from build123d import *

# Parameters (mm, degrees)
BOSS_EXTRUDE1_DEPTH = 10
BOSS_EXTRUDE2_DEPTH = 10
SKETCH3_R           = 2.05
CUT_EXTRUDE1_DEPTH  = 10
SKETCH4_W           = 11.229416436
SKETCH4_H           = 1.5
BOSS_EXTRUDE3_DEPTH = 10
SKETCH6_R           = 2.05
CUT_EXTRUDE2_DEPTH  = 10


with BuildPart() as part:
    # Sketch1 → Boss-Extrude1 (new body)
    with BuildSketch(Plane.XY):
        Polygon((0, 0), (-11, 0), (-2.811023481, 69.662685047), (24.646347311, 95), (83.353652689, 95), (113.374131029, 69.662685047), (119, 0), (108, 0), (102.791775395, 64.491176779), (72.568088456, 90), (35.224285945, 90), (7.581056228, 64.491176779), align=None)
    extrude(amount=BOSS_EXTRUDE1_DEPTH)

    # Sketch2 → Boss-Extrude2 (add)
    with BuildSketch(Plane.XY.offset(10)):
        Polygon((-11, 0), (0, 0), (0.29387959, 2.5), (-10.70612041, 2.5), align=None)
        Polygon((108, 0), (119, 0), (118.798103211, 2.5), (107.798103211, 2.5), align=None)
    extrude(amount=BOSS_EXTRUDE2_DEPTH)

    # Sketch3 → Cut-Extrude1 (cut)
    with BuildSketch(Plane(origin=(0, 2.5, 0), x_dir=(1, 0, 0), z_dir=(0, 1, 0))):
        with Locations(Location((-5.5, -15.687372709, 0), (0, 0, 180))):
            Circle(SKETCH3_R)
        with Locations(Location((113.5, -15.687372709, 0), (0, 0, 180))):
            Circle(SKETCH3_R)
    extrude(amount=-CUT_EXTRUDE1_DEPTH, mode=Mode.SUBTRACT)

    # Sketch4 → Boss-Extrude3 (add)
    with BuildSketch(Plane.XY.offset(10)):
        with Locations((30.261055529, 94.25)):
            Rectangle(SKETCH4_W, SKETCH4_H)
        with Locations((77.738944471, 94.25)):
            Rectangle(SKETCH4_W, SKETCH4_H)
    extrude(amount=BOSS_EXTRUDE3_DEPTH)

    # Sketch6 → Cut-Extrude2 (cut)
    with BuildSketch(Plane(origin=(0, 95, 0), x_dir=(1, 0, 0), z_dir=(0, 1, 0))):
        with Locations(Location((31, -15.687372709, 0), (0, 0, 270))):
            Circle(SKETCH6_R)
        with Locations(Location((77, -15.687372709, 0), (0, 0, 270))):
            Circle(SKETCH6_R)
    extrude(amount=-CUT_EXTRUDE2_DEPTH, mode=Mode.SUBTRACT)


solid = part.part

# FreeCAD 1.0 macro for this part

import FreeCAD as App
import Part
import Sketcher

V = App.Vector
Q = App.Units.Quantity


def add_polygon(sketch, points):
    """Adds a closed chain of lines whose ends are joined by coincident constraints."""
    first, n = sketch.GeometryCount, len(points)
    for a, b in zip(points, points[1:] + points[:1]):
        sketch.addGeometry(Part.LineSegment(App.Vector(*a, 0), App.Vector(*b, 0)), False)
    for i in range(n):
        sketch.addConstraint(Sketcher.Constraint("Coincident", first + i, 2, first + (i + 1) % n, 1))

doc = App.newDocument("Part")
body = doc.addObject("PartDesign::Body", "Body")

# Sketch on XY plane
sketch1 = doc.addObject("Sketcher::SketchObject", "Sketch")
body.addObject(sketch1)
sketch1.AttachmentSupport = (doc.XY_Plane, [""])
sketch1.MapMode = "FlatFace"
add_polygon(sketch1, [(-11, 0), (0, 0), (8, 64), (35, 90), (73, 90), (103, 64), (108, 0), (119, 0), (113, 70), (83, 95), (25, 95), (-3, 70)])  # lines 0-11
sketch1.addConstraint([
    Sketcher.Constraint("Horizontal", 0),
    Sketcher.Constraint("Horizontal", 3),
    Sketcher.Constraint("Horizontal", 6),
    Sketcher.Constraint("Horizontal", 9),
    Sketcher.Constraint("Coincident", 0, 2, -1, 1),
    Sketcher.Constraint("PointOnObject", 5, 2, -1),
    Sketcher.Constraint("Parallel", 5, 7),
    Sketcher.Constraint("Parallel", 4, 8),
    Sketcher.Constraint("Parallel", 2, 10),
    Sketcher.Constraint("Parallel", 1, 11),
    Sketcher.Constraint("Horizontal", 1, 2, 4, 2),
    Sketcher.Constraint("Horizontal", 7, 2, 10, 2),
    Sketcher.Constraint("Equal", 0, 6),
    Sketcher.Constraint("DistanceX", 0, 1, 0, 2, Q("11 mm")),
    Sketcher.Constraint("DistanceY", -1, 1, 2, 2, Q("90 mm")),
    Sketcher.Constraint("DistanceX", -1, 1, 5, 2, Q("108 mm")),
    Sketcher.Constraint("DistanceY", -1, 1, 8, 2, Q("95 mm")),
    Sketcher.Constraint("Distance", 1, Q("64.935232 mm")),
    Sketcher.Constraint("Distance", 2, Q("37.614468 mm")),
    Sketcher.Constraint("Distance", 5, Q("64.70114 mm")),
    Sketcher.Constraint("Distance", 11, Q("70.142348 mm")),
    Sketcher.Constraint("DistanceX", 3, 1, 3, 2, Q("37.343803 mm")),
    Sketcher.Constraint("DistanceX", 9, 2, 9, 1, Q("58.707305 mm")),
])
pad1 = doc.addObject("PartDesign::Pad", "Pad")
body.addObject(pad1)
pad1.Profile = sketch1
pad1.Length = 10

# Sketch on XY plane
sketch2 = doc.addObject("Sketcher::SketchObject", "Sketch001")
body.addObject(sketch2)
sketch2.AttachmentSupport = (doc.XY_Plane, [""])
sketch2.MapMode = "FlatFace"
sketch2.AttachmentOffset = App.Placement(V(0, 0, 10), App.Rotation())
add_polygon(sketch2, [(-11, 0), (0, 0), (0.3, 2.5), (-10.7, 2.5)])  # lines 0-3
add_polygon(sketch2, [(108, 0), (119, 0), (118.8, 2.5), (107.8, 2.5)])  # lines 4-7
sketch2.addConstraint([
    Sketcher.Constraint("Horizontal", 0),
    Sketcher.Constraint("Horizontal", 2),
    Sketcher.Constraint("Horizontal", 4),
    Sketcher.Constraint("Horizontal", 6),
    Sketcher.Constraint("Coincident", 0, 2, -1, 1),
    Sketcher.Constraint("PointOnObject", 4, 2, -1),
    Sketcher.Constraint("Parallel", 1, 3),
    Sketcher.Constraint("Parallel", 5, 7),
    Sketcher.Constraint("Horizontal", 2, 2, 5, 2),
    Sketcher.Constraint("Equal", 2, 4),
    Sketcher.Constraint("DistanceX", 0, 1, 0, 2, Q("11 mm")),
    Sketcher.Constraint("DistanceX", -1, 1, 4, 2, Q("119 mm")),
    Sketcher.Constraint("DistanceY", -1, 1, 1, 2, Q("2.5 mm")),
    Sketcher.Constraint("Distance", 5, Q("2.508139 mm")),
    Sketcher.Constraint("DistanceX", -1, 1, 1, 2, Q("0.29388 mm")),
])
pad2 = doc.addObject("PartDesign::Pad", "Pad001")
body.addObject(pad2)
pad2.Profile = sketch2
pad2.Length = 10

# Sketch on XZ plane
sketch3 = doc.addObject("Sketcher::SketchObject", "Sketch002")
body.addObject(sketch3)
sketch3.AttachmentSupport = (doc.XZ_Plane, [""])
sketch3.MapMode = "FlatFace"
sketch3.AttachmentOffset = App.Placement(V(0, 0, -2.5), App.Rotation())
sketch3.addGeometry([
    Part.Circle(V(-5.5, 15.7, 0), V(0, 0, 1), 2),
    Part.Circle(V(113.5, 15.7, 0), V(0, 0, 1), 2),
], False)
sketch3.addConstraint([
    Sketcher.Constraint("Equal", 0, 1),
    Sketcher.Constraint("Horizontal", 0, 3, 1, 3),
    Sketcher.Constraint("Diameter", 0, Q("4.1 mm")),
    Sketcher.Constraint("DistanceX", 0, 3, 1, 3, Q("119 mm")),
    Sketcher.Constraint("DistanceX", 0, 3, -1, 1, Q("5.5 mm")),
    Sketcher.Constraint("DistanceY", -1, 1, 0, 3, Q("15.687373 mm")),
])
pocket1 = doc.addObject("PartDesign::Pocket", "Pocket")
body.addObject(pocket1)
pocket1.Profile = sketch3
pocket1.Length = 10
pocket1.Reversed = True

# Sketch on XY plane
sketch4 = doc.addObject("Sketcher::SketchObject", "Sketch003")
body.addObject(sketch4)
sketch4.AttachmentSupport = (doc.XY_Plane, [""])
sketch4.MapMode = "FlatFace"
sketch4.AttachmentOffset = App.Placement(V(0, 0, 10), App.Rotation())
add_polygon(sketch4, [(24.6, 95), (24.6, 93.5), (35.9, 93.5), (35.9, 95)])  # lines 0-3
add_polygon(sketch4, [(72.1, 95), (72.1, 93.5), (83.4, 93.5), (83.4, 95)])  # lines 4-7
sketch4.addConstraint([
    Sketcher.Constraint("Vertical", 0),
    Sketcher.Constraint("Horizontal", 1),
    Sketcher.Constraint("Vertical", 2),
    Sketcher.Constraint("Horizontal", 3),
    Sketcher.Constraint("Vertical", 4),
    Sketcher.Constraint("Horizontal", 5),
    Sketcher.Constraint("Vertical", 6),
    Sketcher.Constraint("Horizontal", 7),
    Sketcher.Constraint("Horizontal", 1, 2, 4, 2),
    Sketcher.Constraint("Horizontal", 3, 2, 6, 2),
    Sketcher.Constraint("Equal", 3, 5),
    Sketcher.Constraint("DistanceY", 0, 2, 0, 1, Q("1.5 mm")),
    Sketcher.Constraint("DistanceY", -1, 1, 2, 2, Q("95 mm")),
    Sketcher.Constraint("DistanceX", 1, 1, 1, 2, Q("11.229416 mm")),
    Sketcher.Constraint("DistanceX", 0, 2, 4, 2, Q("47.477889 mm")),
    Sketcher.Constraint("DistanceX", -1, 1, 0, 2, Q("24.646347 mm")),
])
pad3 = doc.addObject("PartDesign::Pad", "Pad002")
body.addObject(pad3)
pad3.Profile = sketch4
pad3.Length = 10

# Sketch on XZ plane
sketch5 = doc.addObject("Sketcher::SketchObject", "Sketch004")
body.addObject(sketch5)
sketch5.AttachmentSupport = (doc.XZ_Plane, [""])
sketch5.MapMode = "FlatFace"
sketch5.AttachmentOffset = App.Placement(V(0, 0, -95), App.Rotation())
sketch5.addGeometry([
    Part.Circle(V(31, 15.7, 0), V(0, 0, 1), 2),
    Part.Circle(V(77, 15.7, 0), V(0, 0, 1), 2),
], False)
sketch5.addConstraint([
    Sketcher.Constraint("Equal", 0, 1),
    Sketcher.Constraint("Horizontal", 0, 3, 1, 3),
    Sketcher.Constraint("Diameter", 0, Q("4.1 mm")),
    Sketcher.Constraint("DistanceX", -1, 1, 0, 3, Q("31 mm")),
    Sketcher.Constraint("DistanceX", -1, 1, 1, 3, Q("77 mm")),
    Sketcher.Constraint("DistanceY", -1, 1, 0, 3, Q("15.687373 mm")),
])
pocket2 = doc.addObject("PartDesign::Pocket", "Pocket001")
body.addObject(pocket2)
pocket2.Profile = sketch5
pocket2.Length = 10
pocket2.Reversed = True

doc.recompute()
